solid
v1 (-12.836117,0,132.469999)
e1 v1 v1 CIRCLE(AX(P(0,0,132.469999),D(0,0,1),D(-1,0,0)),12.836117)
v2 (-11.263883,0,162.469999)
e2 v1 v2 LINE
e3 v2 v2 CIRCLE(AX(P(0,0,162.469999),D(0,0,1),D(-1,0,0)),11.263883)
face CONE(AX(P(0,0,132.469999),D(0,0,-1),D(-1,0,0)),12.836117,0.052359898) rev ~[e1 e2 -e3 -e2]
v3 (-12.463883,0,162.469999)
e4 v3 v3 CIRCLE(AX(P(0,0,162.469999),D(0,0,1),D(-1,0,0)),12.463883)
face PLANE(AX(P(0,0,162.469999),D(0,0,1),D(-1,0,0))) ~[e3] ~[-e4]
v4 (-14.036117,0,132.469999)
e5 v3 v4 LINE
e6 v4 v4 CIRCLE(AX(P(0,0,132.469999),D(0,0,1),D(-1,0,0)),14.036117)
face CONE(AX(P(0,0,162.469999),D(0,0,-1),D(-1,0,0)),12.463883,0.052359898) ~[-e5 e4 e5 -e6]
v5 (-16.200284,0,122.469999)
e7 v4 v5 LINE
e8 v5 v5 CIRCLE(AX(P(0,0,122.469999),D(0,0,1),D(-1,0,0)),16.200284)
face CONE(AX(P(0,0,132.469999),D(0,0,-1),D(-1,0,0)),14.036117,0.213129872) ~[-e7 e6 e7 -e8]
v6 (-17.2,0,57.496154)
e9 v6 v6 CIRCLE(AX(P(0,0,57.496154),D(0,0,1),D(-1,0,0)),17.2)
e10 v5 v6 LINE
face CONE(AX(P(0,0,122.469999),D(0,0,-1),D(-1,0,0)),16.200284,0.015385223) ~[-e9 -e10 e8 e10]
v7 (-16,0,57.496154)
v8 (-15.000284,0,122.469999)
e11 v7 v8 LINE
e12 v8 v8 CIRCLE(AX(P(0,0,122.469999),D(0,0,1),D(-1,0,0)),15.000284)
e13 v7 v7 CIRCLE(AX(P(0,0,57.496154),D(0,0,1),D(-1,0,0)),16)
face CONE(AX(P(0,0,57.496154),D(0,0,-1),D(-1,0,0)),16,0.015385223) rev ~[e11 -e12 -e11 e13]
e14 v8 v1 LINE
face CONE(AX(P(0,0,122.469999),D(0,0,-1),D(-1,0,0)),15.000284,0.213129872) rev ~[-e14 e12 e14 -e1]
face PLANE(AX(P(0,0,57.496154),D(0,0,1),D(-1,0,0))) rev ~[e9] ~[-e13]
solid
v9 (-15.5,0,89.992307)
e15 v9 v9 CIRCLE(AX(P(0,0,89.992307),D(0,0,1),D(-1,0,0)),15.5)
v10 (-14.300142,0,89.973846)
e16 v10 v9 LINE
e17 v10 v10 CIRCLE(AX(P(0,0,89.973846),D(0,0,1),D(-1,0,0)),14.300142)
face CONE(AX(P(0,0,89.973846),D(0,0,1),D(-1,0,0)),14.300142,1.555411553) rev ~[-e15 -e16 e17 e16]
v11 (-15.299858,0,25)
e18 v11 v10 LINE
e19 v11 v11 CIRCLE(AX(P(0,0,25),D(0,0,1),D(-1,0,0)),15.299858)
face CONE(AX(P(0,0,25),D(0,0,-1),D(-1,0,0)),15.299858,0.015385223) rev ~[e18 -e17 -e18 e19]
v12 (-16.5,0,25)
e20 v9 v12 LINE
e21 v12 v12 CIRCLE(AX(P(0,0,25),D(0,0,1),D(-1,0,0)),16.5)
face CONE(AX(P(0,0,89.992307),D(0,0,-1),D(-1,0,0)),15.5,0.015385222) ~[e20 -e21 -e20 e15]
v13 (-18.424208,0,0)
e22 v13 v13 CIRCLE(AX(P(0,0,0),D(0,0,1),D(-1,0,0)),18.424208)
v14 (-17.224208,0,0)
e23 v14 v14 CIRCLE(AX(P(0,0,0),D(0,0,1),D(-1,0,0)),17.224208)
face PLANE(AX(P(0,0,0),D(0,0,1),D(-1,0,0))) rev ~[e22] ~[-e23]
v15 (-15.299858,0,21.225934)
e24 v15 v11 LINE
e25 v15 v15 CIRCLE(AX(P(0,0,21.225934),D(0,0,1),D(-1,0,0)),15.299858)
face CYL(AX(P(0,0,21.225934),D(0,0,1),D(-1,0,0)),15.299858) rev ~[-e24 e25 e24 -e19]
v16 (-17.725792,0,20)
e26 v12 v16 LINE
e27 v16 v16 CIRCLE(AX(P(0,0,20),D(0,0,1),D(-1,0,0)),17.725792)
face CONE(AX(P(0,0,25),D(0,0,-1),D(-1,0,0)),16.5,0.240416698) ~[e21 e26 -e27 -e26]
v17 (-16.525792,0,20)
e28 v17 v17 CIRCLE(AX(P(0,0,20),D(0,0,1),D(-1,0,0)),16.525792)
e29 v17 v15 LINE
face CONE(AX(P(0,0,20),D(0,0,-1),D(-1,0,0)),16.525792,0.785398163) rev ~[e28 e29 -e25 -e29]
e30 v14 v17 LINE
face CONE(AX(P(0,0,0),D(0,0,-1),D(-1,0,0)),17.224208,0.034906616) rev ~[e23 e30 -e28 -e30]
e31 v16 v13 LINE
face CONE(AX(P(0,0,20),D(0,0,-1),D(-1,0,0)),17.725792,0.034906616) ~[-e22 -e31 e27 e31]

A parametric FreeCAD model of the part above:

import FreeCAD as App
import Part
import Sketcher

V = App.Vector
Q = App.Units.Quantity


def add_polygon(sketch, points):
    """Adds a closed chain of lines whose ends are joined by coincident constraints."""
    first, n = sketch.GeometryCount, len(points)
    for a, b in zip(points, points[1:] + points[:1]):
        sketch.addGeometry(Part.LineSegment(App.Vector(*a, 0), App.Vector(*b, 0)), False)
    for i in range(n):
        sketch.addConstraint(Sketcher.Constraint("Coincident", first + i, 2, first + (i + 1) % n, 1))

doc = App.newDocument("Part")
body = doc.addObject("PartDesign::Body", "Body")

# Sketch on XZ plane
sketch1 = body.newObject("Sketcher::SketchObject", "Sketch")
sketch1.AttachmentSupport = (doc.getObject("XZ_Plane"), [""])
sketch1.MapMode = "FlatFace"
add_polygon(sketch1, [(-14.3, 90), (-15.5, 90), (-16.5, 25), (-17.7, 20), (-18.4, 0), (-17.2, 0), (-16.5, 20), (-15.3, 21.2), (-15.3, 25)])  # lines 0-8
sketch1.addConstraint(Sketcher.Constraint("Horizontal", 4))
sketch1.addConstraint(Sketcher.Constraint("Vertical", 7))
sketch1.addConstraint(Sketcher.Constraint("PointOnObject", 3, 2, -1))
sketch1.addConstraint(Sketcher.Constraint("Perpendicular", 0, 1))
sketch1.addConstraint(Sketcher.Constraint("Parallel", 3, 5))
sketch1.addConstraint(Sketcher.Constraint("Parallel", 1, 8))
sketch1.addConstraint(Sketcher.Constraint("Horizontal", 2, 2, 5, 2))
sketch1.addConstraint(Sketcher.Constraint("Horizontal", 1, 2, 7, 2))
sketch1.addConstraint(Sketcher.Constraint("Angle", 3, Q("-92.000002 deg")))
sketch1.addConstraint(Sketcher.Constraint("Angle", 6, Q("45 deg")))
sketch1.addConstraint(Sketcher.Constraint("Distance", 1, Q("65 mm")))
sketch1.addConstraint(Sketcher.Constraint("DistanceX", 4, 1, 4, 2, Q("1.2 mm")))
sketch1.addConstraint(Sketcher.Constraint("DistanceY", -1, 1, 1, 2, Q("25 mm")))
sketch1.addConstraint(Sketcher.Constraint("DistanceY", -1, 1, 2, 2, Q("20 mm")))
sketch1.addConstraint(Sketcher.Constraint("DistanceX", 1, 2, 0, 2, Q("1 mm")))
sketch1.addConstraint(Sketcher.Constraint("Distance", 0, Q("1.2 mm")))
sketch1.addConstraint(Sketcher.Constraint("DistanceX", 0, 2, -1, 1, Q("15.5 mm")))
sketch1.addConstraint(Sketcher.Constraint("DistanceY", 7, 1, 7, 2, Q("3.774066 mm")))
revolution = body.newObject("PartDesign::Revolution", "Revolution")
revolution.Profile = sketch1
revolution.ReferenceAxis = (sketch1, ["V_Axis"])
revolution.Angle = 360
body2 = doc.addObject("PartDesign::Body", "Body001")

# Sketch on XZ plane
sketch2 = body2.newObject("Sketcher::SketchObject", "Sketch001")
sketch2.AttachmentSupport = (doc.getObject("XZ_Plane001"), [""])
sketch2.MapMode = "FlatFace"
add_polygon(sketch2, [(-17.2, 57.496154), (-16, 57.496154), (-15.000284, 122.469999), (-12.836117, 132.469999), (-11.263883, 162.469999), (-12.463883, 162.469999), (-14.036117, 132.469999), (-16.200284, 122.469999)])  # lines 0-7
sketch2.addConstraint(Sketcher.Constraint("Horizontal", 0))
sketch2.addConstraint(Sketcher.Constraint("Horizontal", 4))
sketch2.addConstraint(Sketcher.Constraint("Parallel", 3, 5))
sketch2.addConstraint(Sketcher.Constraint("Parallel", 2, 6))
sketch2.addConstraint(Sketcher.Constraint("Parallel", 1, 7))
sketch2.addConstraint(Sketcher.Constraint("Horizontal", 2, 2, 5, 2))
sketch2.addConstraint(Sketcher.Constraint("Horizontal", 1, 2, 6, 2))
sketch2.addConstraint(Sketcher.Constraint("Angle", 3, Q("86.999999 deg")))
sketch2.addConstraint(Sketcher.Constraint("DistanceX", 0, 1, 0, 2, Q("1.2 mm")))
sketch2.addConstraint(Sketcher.Constraint("DistanceX", 0, 2, -1, 1, Q("16 mm")))
sketch2.addConstraint(Sketcher.Constraint("DistanceY", 1, 2, 2, 2, Q("10 mm")))
sketch2.addConstraint(Sketcher.Constraint("DistanceY", 2, 2, 3, 2, Q("30 mm")))
sketch2.addConstraint(Sketcher.Constraint("DistanceY", -1, 1, 1, 2, Q("122.469999 mm")))
sketch2.addConstraint(Sketcher.Constraint("Distance", 2, Q("10.231501 mm")))
sketch2.addConstraint(Sketcher.Constraint("Distance", 1, Q("64.981536 mm")))
sketch2.addConstraint(Sketcher.Constraint("DistanceY", -1, 1, 0, 2, Q("57.496154 mm")))
revolution2 = body2.newObject("PartDesign::Revolution", "Revolution001")
revolution2.Profile = sketch2
revolution2.ReferenceAxis = (sketch2, ["V_Axis"])
revolution2.Angle = 360

doc.recompute()
